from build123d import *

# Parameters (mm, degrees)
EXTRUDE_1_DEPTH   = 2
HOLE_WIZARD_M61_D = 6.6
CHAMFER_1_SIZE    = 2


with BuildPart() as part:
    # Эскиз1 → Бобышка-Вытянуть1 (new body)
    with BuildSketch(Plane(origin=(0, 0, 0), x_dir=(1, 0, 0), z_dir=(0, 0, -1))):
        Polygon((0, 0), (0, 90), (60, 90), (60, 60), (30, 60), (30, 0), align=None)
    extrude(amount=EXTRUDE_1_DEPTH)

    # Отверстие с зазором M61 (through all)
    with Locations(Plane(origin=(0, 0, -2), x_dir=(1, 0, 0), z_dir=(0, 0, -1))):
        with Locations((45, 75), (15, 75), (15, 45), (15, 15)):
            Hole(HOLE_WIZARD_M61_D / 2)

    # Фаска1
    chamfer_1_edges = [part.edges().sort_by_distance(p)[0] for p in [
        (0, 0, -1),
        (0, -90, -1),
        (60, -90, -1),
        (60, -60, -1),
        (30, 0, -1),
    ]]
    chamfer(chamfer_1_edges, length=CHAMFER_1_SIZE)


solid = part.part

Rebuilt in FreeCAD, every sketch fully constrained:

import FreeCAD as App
import Part
import Sketcher
from FreeCAD import Vector


def edges_at(feature, points):
    """Names of the edges that pass closest to the given points."""
    edges = feature.Shape.Edges
    near = lambda p: min(range(len(edges)), key=lambda i: edges[i].distToShape(Part.Vertex(*p))[0])
    return sorted({f"Edge{near(p) + 1}" for p in points})


def add_polygon(sketch, points):
    """Adds a closed chain of lines whose ends are joined by coincident constraints."""
    first, n = sketch.GeometryCount, len(points)
    for a, b in zip(points, points[1:] + points[:1]):
        sketch.addGeometry(Part.LineSegment(App.Vector(*a, 0), App.Vector(*b, 0)), False)
    for i in range(n):
        sketch.addConstraint(Sketcher.Constraint("Coincident", first + i, 2, first + (i + 1) % n, 1))

doc = App.newDocument("Part")
body = doc.addObject("PartDesign::Body", "Body")

sketch1 = doc.addObject("Sketcher::SketchObject", "Sketch")
body.addObject(sketch1)
sketch1.AttachmentSupport = (doc.XY_Plane, [""])
sketch1.MapMode = "FlatFace"
add_polygon(sketch1, [(0, -90), (0, 0), (30, 0), (30, -60), (60, -60), (60, -90)])
sketch1.addConstraint([
    Sketcher.Constraint("Vertical", 0),
    Sketcher.Constraint("Horizontal", 1),
    Sketcher.Constraint("Vertical", 2),
    Sketcher.Constraint("Horizontal", 3),
    Sketcher.Constraint("Vertical", 4),
    Sketcher.Constraint("Horizontal", 5),
    Sketcher.Constraint("Coincident", 0, 2, -1, 1),
    Sketcher.Constraint("Equal", 1, 3),
    Sketcher.Constraint("Equal", 5, 2),
    Sketcher.Constraint("Equal", 3, 4),
    Sketcher.Constraint("DistanceX", 1, 1, 1, 2, 30.0),
])
pad1 = doc.addObject("PartDesign::Pad", "Pad")
body.addObject(pad1)
pad1.Profile = sketch1
pad1.Length = 2
pad1.Reversed = True

sketch2 = doc.addObject("Sketcher::SketchObject", "Sketch001")
body.addObject(sketch2)
sketch2.AttachmentSupport = (doc.XY_Plane, [""])
sketch2.MapMode = "FlatFace"
sketch2.AttachmentOffset = App.Placement(Vector(0, 0, -2), App.Rotation())
sketch2.addGeometry([
    Part.Circle(Vector(45, -75, 0), Vector(0, 0, 1), 3.3),
    Part.Circle(Vector(15, -75, 0), Vector(0, 0, 1), 3.3),
    Part.Circle(Vector(15, -45, 0), Vector(0, 0, 1), 3.3),
    Part.Circle(Vector(15, -15, 0), Vector(0, 0, 1), 3.3),
], False)
sketch2.addConstraint([
    Sketcher.Constraint("Equal", 0, 1),
    Sketcher.Constraint("Equal", 1, 2),
    Sketcher.Constraint("Equal", 2, 3),
    Sketcher.Constraint("Horizontal", 0, 3, 1, 3),
    Sketcher.Constraint("Vertical", 1, 3, 2, 3),
    Sketcher.Constraint("Vertical", 2, 3, 3, 3),
    Sketcher.Constraint("Diameter", 0, 6.6),
    Sketcher.Constraint("DistanceX", -1, 1, 0, 3, 45.0),
    Sketcher.Constraint("DistanceY", 0, 3, -1, 1, 75.0),
    Sketcher.Constraint("DistanceX", -1, 1, 1, 3, 15.0),
    Sketcher.Constraint("DistanceY", 2, 3, -1, 1, 45.0),
    Sketcher.Constraint("DistanceY", 3, 3, -1, 1, 15.0),
])
doc.recompute()
hole = doc.addObject("PartDesign::Hole", "Hole")
body.addObject(hole)
hole.Profile = sketch2
hole.ThreadType = "None"
hole.Diameter = 6.6
hole.DepthType = "ThroughAll"
hole.Reversed = True
doc.recompute()

chamfer = doc.addObject("PartDesign::Chamfer", "Chamfer")
body.addObject(chamfer)
chamfer.Base = (hole, edges_at(hole, [
    (0, 0, -1),
    (0, -90, -1),
    (60, -90, -1),
    (60, -60, -1),
    (30, 0, -1),
]))
chamfer.Size = 2

doc.recompute()
